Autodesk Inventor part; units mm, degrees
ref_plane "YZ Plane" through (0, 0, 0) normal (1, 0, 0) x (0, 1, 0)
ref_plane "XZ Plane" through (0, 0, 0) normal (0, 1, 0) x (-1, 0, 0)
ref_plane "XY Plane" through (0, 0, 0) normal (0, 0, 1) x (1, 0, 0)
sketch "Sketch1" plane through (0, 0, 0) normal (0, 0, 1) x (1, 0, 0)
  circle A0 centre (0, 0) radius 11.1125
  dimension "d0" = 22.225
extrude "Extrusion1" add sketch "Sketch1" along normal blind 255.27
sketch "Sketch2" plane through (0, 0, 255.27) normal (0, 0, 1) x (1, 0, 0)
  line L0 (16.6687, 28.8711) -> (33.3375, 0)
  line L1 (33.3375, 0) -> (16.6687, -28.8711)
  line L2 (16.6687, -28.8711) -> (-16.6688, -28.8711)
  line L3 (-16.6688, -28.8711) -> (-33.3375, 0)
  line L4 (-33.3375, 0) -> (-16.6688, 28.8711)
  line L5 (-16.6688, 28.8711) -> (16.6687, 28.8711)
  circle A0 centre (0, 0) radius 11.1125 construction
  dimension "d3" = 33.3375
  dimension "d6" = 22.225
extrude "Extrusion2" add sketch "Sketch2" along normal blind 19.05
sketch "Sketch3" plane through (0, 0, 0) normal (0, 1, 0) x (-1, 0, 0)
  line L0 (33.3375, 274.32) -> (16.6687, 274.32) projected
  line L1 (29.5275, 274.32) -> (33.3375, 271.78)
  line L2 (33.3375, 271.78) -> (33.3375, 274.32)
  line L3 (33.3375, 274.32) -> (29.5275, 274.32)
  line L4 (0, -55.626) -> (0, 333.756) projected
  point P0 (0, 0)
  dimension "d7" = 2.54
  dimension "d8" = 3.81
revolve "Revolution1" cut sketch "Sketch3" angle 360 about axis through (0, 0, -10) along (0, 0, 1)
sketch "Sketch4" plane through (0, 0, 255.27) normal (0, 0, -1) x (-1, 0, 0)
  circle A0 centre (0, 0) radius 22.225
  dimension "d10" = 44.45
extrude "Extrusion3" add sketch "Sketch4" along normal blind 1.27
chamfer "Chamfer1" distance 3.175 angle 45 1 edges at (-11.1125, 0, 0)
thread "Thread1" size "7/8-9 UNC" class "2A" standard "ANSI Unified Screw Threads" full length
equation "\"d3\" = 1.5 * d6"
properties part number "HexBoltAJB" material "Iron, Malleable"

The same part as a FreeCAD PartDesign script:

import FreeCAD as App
import Part
import Sketcher

V = App.Vector
Q = App.Units.Quantity


def edges_at(feature, points):
    """Names of the edges that pass closest to the given points."""
    edges = feature.Shape.Edges
    near = lambda p: min(range(len(edges)), key=lambda i: edges[i].distToShape(Part.Vertex(*p))[0])
    return sorted({f"Edge{near(p) + 1}" for p in points})

doc = App.newDocument("Part")
body = doc.addObject("PartDesign::Body", "Body")

# Sketch on XY plane
sketch1 = body.newObject("Sketcher::SketchObject", "Sketch")
sketch1.AttachmentSupport = (doc.getObject("XY_Plane"), [""])
sketch1.MapMode = "FlatFace"
sketch1.addGeometry(Part.Circle(V(0, 0, 0), V(0, 0, 1), 11), False)
sketch1.addConstraint(Sketcher.Constraint("Coincident", 0, 3, -1, 1))
sketch1.addConstraint(Sketcher.Constraint("Diameter", 0, Q("0.875 in")))
pad1 = body.newObject("PartDesign::Pad", "Pad")
pad1.Profile = sketch1
pad1.Length = Q("10.05 in")

# Sketch on XY plane
sketch2 = body.newObject("Sketcher::SketchObject", "Sketch001")
sketch2.AttachmentSupport = (doc.getObject("XY_Plane"), [""])
sketch2.MapMode = "FlatFace"
sketch2.AttachmentOffset = App.Placement(V(0, 0, 10.05 * 25.4), App.Rotation())
sketch2.addGeometry(Part.LineSegment(V(33, 0, 0), V(17, 29, 0)), False)
sketch2.addGeometry(Part.LineSegment(V(17, 29, 0), V(-17, 29, 0)), False)
sketch2.addGeometry(Part.LineSegment(V(-17, 29, 0), V(-33, 0, 0)), False)
sketch2.addGeometry(Part.LineSegment(V(-33, 0, 0), V(-17, -29, 0)), False)
sketch2.addGeometry(Part.LineSegment(V(-17, -29, 0), V(17, -29, 0)), False)
sketch2.addGeometry(Part.LineSegment(V(17, -29, 0), V(33, 0, 0)), False)
sketch2.addConstraint(Sketcher.Constraint("Coincident", 0, 2, 1, 1))
sketch2.addConstraint(Sketcher.Constraint("Coincident", 1, 2, 2, 1))
sketch2.addConstraint(Sketcher.Constraint("Coincident", 2, 2, 3, 1))
sketch2.addConstraint(Sketcher.Constraint("Coincident", 3, 2, 4, 1))
sketch2.addConstraint(Sketcher.Constraint("Coincident", 4, 2, 5, 1))
sketch2.addConstraint(Sketcher.Constraint("Coincident", 5, 2, 0, 1))
sketch2.addConstraint(Sketcher.Constraint("Horizontal", 1))
sketch2.addConstraint(Sketcher.Constraint("Horizontal", 4))
sketch2.addConstraint(Sketcher.Constraint("Symmetric", 0, 2, 3, 2, -1, 1))
sketch2.addConstraint(Sketcher.Constraint("Symmetric", 2, 2, 5, 2, -1, 1))
sketch2.addConstraint(Sketcher.Constraint("PointOnObject", 2, 2, -1))
sketch2.addConstraint(Sketcher.Constraint("Parallel", 2, 5))
sketch2.addConstraint(Sketcher.Constraint("Vertical", 1, 2, 3, 2))
sketch2.addConstraint(Sketcher.Constraint("DistanceX", 1, 2, 1, 1, Q("1.3125 in")))
sketch2.addConstraint(Sketcher.Constraint("Distance", 0, Q("1.3125 in")))
sketch2.addConstraint(Sketcher.Constraint("DistanceX", 2, 2, -1, 1, Q("1.3125 in")))
pad2 = body.newObject("PartDesign::Pad", "Pad001")
pad2.Profile = sketch2
pad2.Length = Q("0.75 in")

# Sketch on XZ plane
sketch3 = body.newObject("Sketcher::SketchObject", "Sketch002")
sketch3.AttachmentSupport = (doc.getObject("XZ_Plane"), [""])
sketch3.MapMode = "FlatFace"
sketch3.addGeometry(Part.LineSegment(V(-33.3, 271.8, 0), V(-33.3, 274.3, 0)), False)
sketch3.addGeometry(Part.LineSegment(V(-33.3, 274.3, 0), V(-29.5, 274.3, 0)), False)
sketch3.addGeometry(Part.LineSegment(V(-29.5, 274.3, 0), V(-33.3, 271.8, 0)), False)
sketch3.addConstraint(Sketcher.Constraint("Coincident", 0, 2, 1, 1))
sketch3.addConstraint(Sketcher.Constraint("Coincident", 1, 2, 2, 1))
sketch3.addConstraint(Sketcher.Constraint("Coincident", 2, 2, 0, 1))
sketch3.addConstraint(Sketcher.Constraint("Vertical", 0))
sketch3.addConstraint(Sketcher.Constraint("Horizontal", 1))
sketch3.addConstraint(Sketcher.Constraint("DistanceY", 0, 1, 0, 2, Q("0.1 in")))
sketch3.addConstraint(Sketcher.Constraint("DistanceX", 1, 1, 1, 2, Q("0.15 in")))
sketch3.addConstraint(Sketcher.Constraint("DistanceY", -1, 1, 0, 2, Q("10.8 in")))
sketch3.addConstraint(Sketcher.Constraint("DistanceX", 0, 2, -1, 1, Q("1.3125 in")))
groove = body.newObject("PartDesign::Groove", "Groove")
groove.Profile = sketch3
groove.ReferenceAxis = (sketch3, ["V_Axis"])
groove.Angle = 360

# Sketch on XY plane
sketch4 = body.newObject("Sketcher::SketchObject", "Sketch003")
sketch4.AttachmentSupport = (doc.getObject("XY_Plane"), [""])
sketch4.MapMode = "FlatFace"
sketch4.AttachmentOffset = App.Placement(V(0, 0, 10.05 * 25.4), App.Rotation())
sketch4.addGeometry(Part.Circle(V(0, 0, 0), V(0, 0, 1), 22), False)
sketch4.addConstraint(Sketcher.Constraint("Coincident", 0, 3, -1, 1))
sketch4.addConstraint(Sketcher.Constraint("Diameter", 0, Q("1.75 in")))
pad3 = body.newObject("PartDesign::Pad", "Pad002")
pad3.Profile = sketch4
pad3.Length = Q("0.05 in")
pad3.Reversed = True
doc.recompute()

chamfer = body.newObject("PartDesign::Chamfer", "Chamfer")
chamfer.Base = (pad3, edges_at(pad3, [(-11.113, 0, 0)]))
chamfer.Size = Q("0.125 in")

doc.recompute()
